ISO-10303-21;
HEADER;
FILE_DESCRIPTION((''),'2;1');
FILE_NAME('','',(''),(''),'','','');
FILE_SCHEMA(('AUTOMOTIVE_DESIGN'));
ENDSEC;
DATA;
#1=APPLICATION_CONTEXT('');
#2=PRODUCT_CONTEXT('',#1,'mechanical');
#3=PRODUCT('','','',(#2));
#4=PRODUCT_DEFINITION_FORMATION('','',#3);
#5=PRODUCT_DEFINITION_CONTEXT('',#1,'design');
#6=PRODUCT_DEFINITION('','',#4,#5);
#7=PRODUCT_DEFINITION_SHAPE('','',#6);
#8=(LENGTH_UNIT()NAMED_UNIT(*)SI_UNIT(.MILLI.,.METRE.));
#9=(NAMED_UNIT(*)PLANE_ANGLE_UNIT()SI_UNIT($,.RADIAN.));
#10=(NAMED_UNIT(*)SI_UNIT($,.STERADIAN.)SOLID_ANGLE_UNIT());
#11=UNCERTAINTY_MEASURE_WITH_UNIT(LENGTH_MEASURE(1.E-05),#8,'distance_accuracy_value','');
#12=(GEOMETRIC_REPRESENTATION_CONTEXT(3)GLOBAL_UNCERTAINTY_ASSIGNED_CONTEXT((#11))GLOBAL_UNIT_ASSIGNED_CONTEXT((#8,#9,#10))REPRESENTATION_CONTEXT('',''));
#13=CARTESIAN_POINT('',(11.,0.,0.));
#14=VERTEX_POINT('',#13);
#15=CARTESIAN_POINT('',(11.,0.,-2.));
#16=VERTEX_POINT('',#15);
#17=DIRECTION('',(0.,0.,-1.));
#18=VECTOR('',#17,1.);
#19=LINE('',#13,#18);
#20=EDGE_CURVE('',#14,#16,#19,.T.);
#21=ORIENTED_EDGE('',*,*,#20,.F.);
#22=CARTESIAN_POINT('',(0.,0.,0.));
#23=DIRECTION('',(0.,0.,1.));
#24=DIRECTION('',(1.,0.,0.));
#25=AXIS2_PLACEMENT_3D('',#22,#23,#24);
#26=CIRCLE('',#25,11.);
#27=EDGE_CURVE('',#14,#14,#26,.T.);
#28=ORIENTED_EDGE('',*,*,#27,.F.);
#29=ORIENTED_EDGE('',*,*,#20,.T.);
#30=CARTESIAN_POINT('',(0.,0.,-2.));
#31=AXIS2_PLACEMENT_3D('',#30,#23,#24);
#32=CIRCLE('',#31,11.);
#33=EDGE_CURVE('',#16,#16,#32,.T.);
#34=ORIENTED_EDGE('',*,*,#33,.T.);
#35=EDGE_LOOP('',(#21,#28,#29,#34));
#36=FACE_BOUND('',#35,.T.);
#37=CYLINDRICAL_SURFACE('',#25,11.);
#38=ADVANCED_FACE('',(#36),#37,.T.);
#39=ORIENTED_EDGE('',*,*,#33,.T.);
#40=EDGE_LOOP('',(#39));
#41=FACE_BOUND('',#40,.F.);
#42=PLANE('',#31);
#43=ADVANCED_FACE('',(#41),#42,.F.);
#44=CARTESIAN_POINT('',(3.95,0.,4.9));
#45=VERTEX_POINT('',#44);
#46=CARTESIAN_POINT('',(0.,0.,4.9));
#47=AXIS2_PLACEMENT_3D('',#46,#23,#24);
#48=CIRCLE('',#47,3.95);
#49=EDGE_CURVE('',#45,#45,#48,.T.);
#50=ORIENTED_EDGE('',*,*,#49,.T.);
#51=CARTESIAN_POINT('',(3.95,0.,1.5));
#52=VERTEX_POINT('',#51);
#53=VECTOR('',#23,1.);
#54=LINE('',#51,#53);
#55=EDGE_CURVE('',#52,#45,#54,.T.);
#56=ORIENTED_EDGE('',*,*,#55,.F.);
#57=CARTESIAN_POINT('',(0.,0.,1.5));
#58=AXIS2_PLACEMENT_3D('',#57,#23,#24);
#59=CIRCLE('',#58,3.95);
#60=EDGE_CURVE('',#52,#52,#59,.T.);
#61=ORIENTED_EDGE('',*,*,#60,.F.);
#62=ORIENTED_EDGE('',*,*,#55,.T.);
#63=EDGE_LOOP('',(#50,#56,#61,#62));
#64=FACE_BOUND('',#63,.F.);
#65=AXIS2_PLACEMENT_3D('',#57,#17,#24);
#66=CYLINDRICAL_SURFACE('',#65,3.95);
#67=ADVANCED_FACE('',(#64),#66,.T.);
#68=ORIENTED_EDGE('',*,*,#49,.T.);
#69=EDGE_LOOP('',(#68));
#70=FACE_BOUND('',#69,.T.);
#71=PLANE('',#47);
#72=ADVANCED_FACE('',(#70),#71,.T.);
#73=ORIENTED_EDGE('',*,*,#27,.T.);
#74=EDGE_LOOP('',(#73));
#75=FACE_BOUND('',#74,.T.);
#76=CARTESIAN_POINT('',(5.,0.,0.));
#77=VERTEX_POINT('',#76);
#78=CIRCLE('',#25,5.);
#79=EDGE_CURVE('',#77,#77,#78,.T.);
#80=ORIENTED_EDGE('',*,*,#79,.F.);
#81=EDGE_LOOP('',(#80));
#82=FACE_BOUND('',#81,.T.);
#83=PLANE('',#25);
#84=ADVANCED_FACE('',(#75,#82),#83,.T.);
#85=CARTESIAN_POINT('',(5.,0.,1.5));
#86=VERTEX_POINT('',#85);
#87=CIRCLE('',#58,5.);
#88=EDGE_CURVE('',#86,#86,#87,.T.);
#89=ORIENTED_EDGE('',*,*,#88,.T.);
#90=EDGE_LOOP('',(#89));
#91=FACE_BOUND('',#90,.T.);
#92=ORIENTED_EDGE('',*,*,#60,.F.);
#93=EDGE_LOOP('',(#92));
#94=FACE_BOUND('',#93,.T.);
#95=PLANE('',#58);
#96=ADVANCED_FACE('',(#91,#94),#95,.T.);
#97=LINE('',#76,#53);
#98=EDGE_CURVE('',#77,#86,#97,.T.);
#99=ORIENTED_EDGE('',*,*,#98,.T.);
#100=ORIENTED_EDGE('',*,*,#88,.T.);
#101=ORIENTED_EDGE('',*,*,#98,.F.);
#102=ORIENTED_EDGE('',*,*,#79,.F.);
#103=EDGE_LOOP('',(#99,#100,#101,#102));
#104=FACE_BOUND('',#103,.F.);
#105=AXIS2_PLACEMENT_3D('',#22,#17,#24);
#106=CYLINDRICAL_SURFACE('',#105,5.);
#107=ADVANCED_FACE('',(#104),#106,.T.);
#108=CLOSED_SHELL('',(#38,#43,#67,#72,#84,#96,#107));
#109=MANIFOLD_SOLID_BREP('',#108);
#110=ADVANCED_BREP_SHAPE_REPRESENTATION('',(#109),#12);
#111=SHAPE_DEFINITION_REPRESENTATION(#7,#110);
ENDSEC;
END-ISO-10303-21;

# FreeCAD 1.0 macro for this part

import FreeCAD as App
import Part
import Sketcher

V = App.Vector

doc = App.newDocument("Part")
body = doc.addObject("PartDesign::Body", "Body")

# Sketch on XY plane
sketch1 = doc.addObject("Sketcher::SketchObject", "Sketch")
body.addObject(sketch1)
sketch1.AttachmentSupport = (doc.XY_Plane, [""])
sketch1.MapMode = "FlatFace"
sketch1.addGeometry(Part.Circle(V(0, 0, 0), V(0, 0, 1), 11), False)
sketch1.addConstraint([
    Sketcher.Constraint("Coincident", 0, 3, -1, 1),
    Sketcher.Constraint("Diameter", 0, 22.0),
])
pad1 = doc.addObject("PartDesign::Pad", "Pad")
body.addObject(pad1)
pad1.Profile = sketch1
pad1.Length = 2
pad1.Reversed = True

# Sketch on XY plane
sketch2 = doc.addObject("Sketcher::SketchObject", "Sketch001")
body.addObject(sketch2)
sketch2.AttachmentSupport = (doc.XY_Plane, [""])
sketch2.MapMode = "FlatFace"
sketch2.addGeometry(Part.Circle(V(0, 0, 0), V(0, 0, 1), 5), False)
sketch2.addConstraint([
    Sketcher.Constraint("Coincident", 0, 3, -1, 1),
    Sketcher.Constraint("Diameter", 0, 10.0),
])
pad2 = doc.addObject("PartDesign::Pad", "Pad001")
body.addObject(pad2)
pad2.Profile = sketch2
pad2.Length = 1.5

# Sketch on XY plane
sketch3 = doc.addObject("Sketcher::SketchObject", "Sketch002")
body.addObject(sketch3)
sketch3.AttachmentSupport = (doc.XY_Plane, [""])
sketch3.MapMode = "FlatFace"
sketch3.AttachmentOffset = App.Placement(V(0, 0, 1.5), App.Rotation())
sketch3.addGeometry(Part.Circle(V(0, 0, 0), V(0, 0, 1), 4), False)
sketch3.addConstraint([
    Sketcher.Constraint("Coincident", 0, 3, -1, 1),
    Sketcher.Constraint("Diameter", 0, 7.9),
])
pad3 = doc.addObject("PartDesign::Pad", "Pad002")
body.addObject(pad3)
pad3.Profile = sketch3
pad3.Length = 3.4

doc.recompute()
